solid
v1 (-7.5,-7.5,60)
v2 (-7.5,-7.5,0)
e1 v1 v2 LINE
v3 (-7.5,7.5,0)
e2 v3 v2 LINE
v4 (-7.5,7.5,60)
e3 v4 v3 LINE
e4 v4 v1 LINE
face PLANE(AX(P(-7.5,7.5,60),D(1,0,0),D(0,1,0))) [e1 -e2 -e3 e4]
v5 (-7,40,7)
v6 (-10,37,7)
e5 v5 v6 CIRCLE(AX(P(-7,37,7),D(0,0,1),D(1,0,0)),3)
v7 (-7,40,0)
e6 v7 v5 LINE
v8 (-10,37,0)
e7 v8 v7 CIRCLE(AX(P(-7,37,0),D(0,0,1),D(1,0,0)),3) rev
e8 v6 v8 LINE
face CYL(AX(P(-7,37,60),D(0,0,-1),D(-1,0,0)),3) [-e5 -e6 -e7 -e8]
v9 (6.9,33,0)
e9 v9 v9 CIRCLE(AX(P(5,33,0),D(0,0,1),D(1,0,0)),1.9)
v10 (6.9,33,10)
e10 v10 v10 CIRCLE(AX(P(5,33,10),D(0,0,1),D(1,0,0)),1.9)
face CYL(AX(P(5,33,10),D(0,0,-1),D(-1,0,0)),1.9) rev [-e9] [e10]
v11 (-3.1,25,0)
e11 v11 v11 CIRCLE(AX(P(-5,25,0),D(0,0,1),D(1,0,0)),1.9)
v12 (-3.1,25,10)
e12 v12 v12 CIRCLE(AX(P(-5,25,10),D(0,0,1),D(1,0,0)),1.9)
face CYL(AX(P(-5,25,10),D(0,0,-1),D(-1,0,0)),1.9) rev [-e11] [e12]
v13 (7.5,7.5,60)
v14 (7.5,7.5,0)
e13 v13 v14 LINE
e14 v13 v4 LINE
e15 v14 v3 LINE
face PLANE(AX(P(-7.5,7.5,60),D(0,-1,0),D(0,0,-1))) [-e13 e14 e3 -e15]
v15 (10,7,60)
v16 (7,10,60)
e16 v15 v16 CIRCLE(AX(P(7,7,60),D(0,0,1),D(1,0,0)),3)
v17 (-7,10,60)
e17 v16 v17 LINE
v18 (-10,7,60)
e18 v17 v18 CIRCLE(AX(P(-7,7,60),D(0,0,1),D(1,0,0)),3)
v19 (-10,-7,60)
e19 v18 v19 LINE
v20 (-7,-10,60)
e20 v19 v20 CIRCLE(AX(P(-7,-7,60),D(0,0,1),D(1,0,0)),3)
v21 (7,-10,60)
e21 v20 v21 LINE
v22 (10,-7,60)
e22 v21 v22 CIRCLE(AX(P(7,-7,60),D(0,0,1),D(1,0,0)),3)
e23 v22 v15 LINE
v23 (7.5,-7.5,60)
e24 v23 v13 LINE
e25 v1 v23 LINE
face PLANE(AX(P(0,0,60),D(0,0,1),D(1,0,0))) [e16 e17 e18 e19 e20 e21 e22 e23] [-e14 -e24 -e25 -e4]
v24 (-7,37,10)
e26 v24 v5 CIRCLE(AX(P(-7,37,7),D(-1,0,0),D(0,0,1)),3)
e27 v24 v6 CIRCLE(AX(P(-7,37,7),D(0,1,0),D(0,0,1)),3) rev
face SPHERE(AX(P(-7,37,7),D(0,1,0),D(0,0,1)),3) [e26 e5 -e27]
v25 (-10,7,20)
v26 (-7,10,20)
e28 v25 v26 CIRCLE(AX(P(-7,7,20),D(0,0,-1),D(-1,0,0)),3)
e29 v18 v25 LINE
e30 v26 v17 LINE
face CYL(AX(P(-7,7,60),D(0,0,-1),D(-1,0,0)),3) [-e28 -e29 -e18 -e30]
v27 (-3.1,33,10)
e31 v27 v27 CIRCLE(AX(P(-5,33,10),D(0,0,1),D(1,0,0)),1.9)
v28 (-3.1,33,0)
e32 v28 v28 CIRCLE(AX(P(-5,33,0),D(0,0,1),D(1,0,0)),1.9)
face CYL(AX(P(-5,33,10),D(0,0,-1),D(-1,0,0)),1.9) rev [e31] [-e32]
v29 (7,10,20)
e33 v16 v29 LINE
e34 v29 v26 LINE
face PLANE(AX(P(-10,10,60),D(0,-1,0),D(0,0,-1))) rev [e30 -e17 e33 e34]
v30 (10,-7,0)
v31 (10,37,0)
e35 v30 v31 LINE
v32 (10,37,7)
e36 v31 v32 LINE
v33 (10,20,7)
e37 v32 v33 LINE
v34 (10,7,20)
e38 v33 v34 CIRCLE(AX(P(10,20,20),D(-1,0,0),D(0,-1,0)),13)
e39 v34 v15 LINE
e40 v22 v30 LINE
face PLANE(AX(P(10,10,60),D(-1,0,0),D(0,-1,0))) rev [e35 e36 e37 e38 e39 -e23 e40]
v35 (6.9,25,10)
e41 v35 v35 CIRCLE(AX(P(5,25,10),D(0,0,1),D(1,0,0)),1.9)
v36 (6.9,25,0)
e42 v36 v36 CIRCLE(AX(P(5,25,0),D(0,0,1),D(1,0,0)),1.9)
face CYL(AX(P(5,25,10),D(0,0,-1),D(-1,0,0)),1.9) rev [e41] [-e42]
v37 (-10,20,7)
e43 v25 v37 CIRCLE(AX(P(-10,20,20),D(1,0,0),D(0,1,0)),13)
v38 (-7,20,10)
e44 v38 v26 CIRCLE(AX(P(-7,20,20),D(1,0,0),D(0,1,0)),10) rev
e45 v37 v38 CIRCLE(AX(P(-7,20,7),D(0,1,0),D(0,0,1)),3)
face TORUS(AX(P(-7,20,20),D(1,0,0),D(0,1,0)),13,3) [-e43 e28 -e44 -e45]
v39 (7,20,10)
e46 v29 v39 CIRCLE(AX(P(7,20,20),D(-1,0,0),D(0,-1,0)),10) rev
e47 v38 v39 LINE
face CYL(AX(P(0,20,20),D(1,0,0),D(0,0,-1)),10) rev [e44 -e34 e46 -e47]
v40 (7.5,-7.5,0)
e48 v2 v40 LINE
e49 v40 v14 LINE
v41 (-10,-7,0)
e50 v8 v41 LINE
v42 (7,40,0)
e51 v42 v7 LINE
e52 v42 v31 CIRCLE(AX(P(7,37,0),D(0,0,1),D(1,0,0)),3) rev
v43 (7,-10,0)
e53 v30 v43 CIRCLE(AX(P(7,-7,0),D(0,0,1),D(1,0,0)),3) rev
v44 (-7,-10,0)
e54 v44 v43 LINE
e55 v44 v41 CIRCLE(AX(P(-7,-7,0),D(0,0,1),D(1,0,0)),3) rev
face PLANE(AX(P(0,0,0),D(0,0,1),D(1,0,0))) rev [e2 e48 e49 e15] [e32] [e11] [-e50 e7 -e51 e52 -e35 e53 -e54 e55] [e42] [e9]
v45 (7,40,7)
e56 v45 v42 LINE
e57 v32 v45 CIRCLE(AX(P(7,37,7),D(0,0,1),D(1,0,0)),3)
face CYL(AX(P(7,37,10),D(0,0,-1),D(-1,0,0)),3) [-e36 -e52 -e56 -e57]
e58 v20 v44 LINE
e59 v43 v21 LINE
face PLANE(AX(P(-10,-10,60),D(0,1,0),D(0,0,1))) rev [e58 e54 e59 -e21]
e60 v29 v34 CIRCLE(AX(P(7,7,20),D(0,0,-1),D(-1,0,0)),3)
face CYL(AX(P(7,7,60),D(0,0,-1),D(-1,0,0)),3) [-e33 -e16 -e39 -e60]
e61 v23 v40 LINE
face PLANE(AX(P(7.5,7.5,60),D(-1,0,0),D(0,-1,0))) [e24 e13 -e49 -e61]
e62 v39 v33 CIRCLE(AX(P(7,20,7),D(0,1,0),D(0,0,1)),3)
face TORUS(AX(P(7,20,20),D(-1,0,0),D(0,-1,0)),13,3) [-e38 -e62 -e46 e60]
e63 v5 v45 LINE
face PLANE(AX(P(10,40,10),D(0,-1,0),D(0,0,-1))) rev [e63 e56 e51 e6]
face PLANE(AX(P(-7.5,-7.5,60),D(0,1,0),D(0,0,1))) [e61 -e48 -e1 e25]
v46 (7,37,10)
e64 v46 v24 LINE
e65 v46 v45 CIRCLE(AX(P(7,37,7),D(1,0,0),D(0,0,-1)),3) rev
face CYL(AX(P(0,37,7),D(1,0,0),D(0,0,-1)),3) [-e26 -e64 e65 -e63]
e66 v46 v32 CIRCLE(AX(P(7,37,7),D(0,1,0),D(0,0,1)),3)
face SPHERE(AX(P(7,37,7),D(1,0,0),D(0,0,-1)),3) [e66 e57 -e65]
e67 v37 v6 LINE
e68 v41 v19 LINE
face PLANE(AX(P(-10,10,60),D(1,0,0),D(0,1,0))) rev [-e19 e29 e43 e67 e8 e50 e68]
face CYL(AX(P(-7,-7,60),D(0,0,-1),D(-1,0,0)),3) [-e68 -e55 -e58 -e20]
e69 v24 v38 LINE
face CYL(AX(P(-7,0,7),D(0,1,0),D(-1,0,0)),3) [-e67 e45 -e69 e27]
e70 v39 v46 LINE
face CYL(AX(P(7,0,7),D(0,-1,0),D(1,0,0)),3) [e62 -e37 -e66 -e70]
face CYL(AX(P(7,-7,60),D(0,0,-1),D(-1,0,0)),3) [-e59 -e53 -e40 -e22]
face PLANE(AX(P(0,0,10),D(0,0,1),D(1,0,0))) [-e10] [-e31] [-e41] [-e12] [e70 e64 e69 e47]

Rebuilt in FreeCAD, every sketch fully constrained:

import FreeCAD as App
import Part
import Sketcher

V = App.Vector


def edges_at(feature, points):
    """Names of the edges that pass closest to the given points."""
    edges = feature.Shape.Edges
    near = lambda p: min(range(len(edges)), key=lambda i: edges[i].distToShape(Part.Vertex(*p))[0])
    return sorted({f"Edge{near(p) + 1}" for p in points})


def add_polygon(sketch, points):
    """Adds a closed chain of lines whose ends are joined by coincident constraints."""
    first, n = sketch.GeometryCount, len(points)
    for a, b in zip(points, points[1:] + points[:1]):
        sketch.addGeometry(Part.LineSegment(App.Vector(*a, 0), App.Vector(*b, 0)), False)
    for i in range(n):
        sketch.addConstraint(Sketcher.Constraint("Coincident", first + i, 2, first + (i + 1) % n, 1))

doc = App.newDocument("Part")
body = doc.addObject("PartDesign::Body", "Body")

sketch1 = body.newObject("Sketcher::SketchObject", "Sketch")
sketch1.AttachmentSupport = (doc.getObject("XY_Plane"), [""])
sketch1.MapMode = "FlatFace"
add_polygon(sketch1, [(-10, 10), (-10, -10), (10, -10), (10, 10)])
add_polygon(sketch1, [(7.5, -7.5), (-7.5, -7.5), (-7.5, 7.5), (7.5, 7.5)])
sketch1.addConstraint([
    Sketcher.Constraint("Vertical", 0),
    Sketcher.Constraint("Horizontal", 1),
    Sketcher.Constraint("Vertical", 2),
    Sketcher.Constraint("Horizontal", 3),
    Sketcher.Constraint("Horizontal", 4),
    Sketcher.Constraint("Vertical", 5),
    Sketcher.Constraint("Horizontal", 6),
    Sketcher.Constraint("Vertical", 7),
    Sketcher.Constraint("Symmetric", 0, 2, 2, 2, -1, 1),
    Sketcher.Constraint("Symmetric", 4, 2, 6, 2, -1, 1),
    Sketcher.Constraint("Equal", 3, 0),
    Sketcher.Constraint("Equal", 6, 5),
    Sketcher.Constraint("DistanceX", 1, 1, 1, 2, 20.0),
    Sketcher.Constraint("DistanceX", 4, 2, 4, 1, 15.0),
])
pad1 = body.newObject("PartDesign::Pad", "Pad")
pad1.Profile = sketch1
pad1.Length = 60

sketch2 = body.newObject("Sketcher::SketchObject", "Sketch001")
sketch2.AttachmentSupport = (doc.getObject("XY_Plane"), [""])
sketch2.MapMode = "FlatFace"
add_polygon(sketch2, [(-10, 40), (-10, 10), (10, 10), (10, 40)])
sketch2.addConstraint([
    Sketcher.Constraint("Vertical", 0),
    Sketcher.Constraint("Horizontal", 1),
    Sketcher.Constraint("Vertical", 2),
    Sketcher.Constraint("Horizontal", 3),
    Sketcher.Constraint("DistanceX", 1, 1, 1, 2, 20.0),
    Sketcher.Constraint("DistanceY", 0, 2, 0, 1, 30.0),
    Sketcher.Constraint("DistanceX", 0, 2, -1, 1, 10.0),
    Sketcher.Constraint("DistanceY", -1, 1, 0, 2, 10.0),
])
pad2 = body.newObject("PartDesign::Pad", "Pad001")
pad2.Profile = sketch2
pad2.Length = 10
doc.recompute()

fillet = body.newObject("PartDesign::Fillet", "Fillet")
fillet.Base = (pad2, edges_at(pad2, [(0, 10, 10)]))
fillet.Radius = 10
doc.recompute()

fillet2 = body.newObject("PartDesign::Fillet", "Fillet001")
fillet2.Base = (fillet, edges_at(fillet, [
    (10, 40, 5),
    (-10, 40, 5),
    (0, 40, 10),
    (-10, 30, 10),
    (10, 30, 10),
    (10, 12.929, 12.929),
    (-10, 12.929, 12.929),
    (-10, 10, 40),
    (10, 10, 40),
]))
fillet2.Radius = 3
doc.recompute()

fillet3 = body.newObject("PartDesign::Fillet", "Fillet002")
fillet3.Base = (fillet2, edges_at(fillet2, [(10, -10, 30), (-10, -10, 30)]))
fillet3.Radius = 3

sketch3 = body.newObject("Sketcher::SketchObject", "Sketch002")
sketch3.AttachmentSupport = (doc.getObject("XY_Plane"), [""])
sketch3.MapMode = "FlatFace"
sketch3.addGeometry([
    Part.Circle(V(5, 25, 0), V(0, 0, 1), 1.9),
    Part.Circle(V(5, 33, 0), V(0, 0, 1), 1.9),
    Part.Circle(V(-5, 33, 0), V(0, 0, 1), 1.9),
    Part.Circle(V(-5, 25, 0), V(0, 0, 1), 1.9),
], False)
sketch3.addConstraint([
    Sketcher.Constraint("Equal", 0, 1),
    Sketcher.Constraint("Equal", 1, 2),
    Sketcher.Constraint("Equal", 2, 3),
    Sketcher.Constraint("Symmetric", 1, 3, 2, 3, -2),
    Sketcher.Constraint("Symmetric", 0, 3, 3, 3, -2),
    Sketcher.Constraint("Vertical", 0, 3, 1, 3),
    Sketcher.Constraint("Diameter", 0, 3.8),
    Sketcher.Constraint("DistanceX", -1, 1, 0, 3, 5.0),
    Sketcher.Constraint("DistanceY", -1, 1, 0, 3, 25.0),
    Sketcher.Constraint("DistanceY", -1, 1, 1, 3, 33.0),
])
pocket1 = body.newObject("PartDesign::Pocket", "Pocket")
pocket1.Profile = sketch3
pocket1.Length = 10
pocket1.Reversed = True

doc.recompute()
